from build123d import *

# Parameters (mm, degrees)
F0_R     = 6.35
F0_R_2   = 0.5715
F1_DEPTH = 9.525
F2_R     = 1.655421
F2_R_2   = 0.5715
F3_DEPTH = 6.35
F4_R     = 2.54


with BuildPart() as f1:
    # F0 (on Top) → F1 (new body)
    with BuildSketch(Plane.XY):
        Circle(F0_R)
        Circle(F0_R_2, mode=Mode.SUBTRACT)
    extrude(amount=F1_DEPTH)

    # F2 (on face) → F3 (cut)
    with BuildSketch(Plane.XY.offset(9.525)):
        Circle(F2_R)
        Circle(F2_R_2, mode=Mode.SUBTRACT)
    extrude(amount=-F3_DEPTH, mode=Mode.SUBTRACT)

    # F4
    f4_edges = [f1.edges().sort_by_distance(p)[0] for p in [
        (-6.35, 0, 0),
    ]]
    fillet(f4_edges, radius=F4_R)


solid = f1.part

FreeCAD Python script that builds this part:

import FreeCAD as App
import Part
import Sketcher
Q = App.Units.Quantity


def edges_at(feature, points):
    """Names of the edges that pass closest to the given points."""
    edges = feature.Shape.Edges
    near = lambda p: min(range(len(edges)), key=lambda i: edges[i].distToShape(Part.Vertex(*p))[0])
    return sorted({f"Edge{near(p) + 1}" for p in points})

doc = App.newDocument("Part")
body = doc.addObject("PartDesign::Body", "Body")

sketch1 = doc.addObject("Sketcher::SketchObject", "Sketch")
body.addObject(sketch1)
sketch1.AttachmentSupport = (doc.XY_Plane, [""])
sketch1.MapMode = "FlatFace"
sketch1.addGeometry(Part.Circle(App.Vector(0, 0, 0), App.Vector(0, 0, 1), 6.3), False)
sketch1.addGeometry(Part.Circle(App.Vector(0, 0, 0), App.Vector(0, 0, 1), 0.6), False)
sketch1.addConstraint(Sketcher.Constraint("Coincident", 0, 3, -1, 1))
sketch1.addConstraint(Sketcher.Constraint("Coincident", 1, 3, -1, 1))
sketch1.addConstraint(Sketcher.Constraint("Diameter", 0, Q("0.5 in")))
sketch1.addConstraint(Sketcher.Constraint("Diameter", 1, Q("0.045 in")))
pad1 = doc.addObject("PartDesign::Pad", "Pad")
body.addObject(pad1)
pad1.Profile = sketch1
pad1.Length = Q("0.375 in")

sketch2 = doc.addObject("Sketcher::SketchObject", "Sketch001")
body.addObject(sketch2)
sketch2.AttachmentSupport = (doc.XY_Plane, [""])
sketch2.MapMode = "FlatFace"
sketch2.AttachmentOffset = App.Placement(App.Vector(0, 0, 0.375 * 25.4), App.Rotation())
sketch2.addGeometry(Part.Circle(App.Vector(0, 0, 0), App.Vector(0, 0, 1), 1.7), False)
sketch2.addGeometry(Part.Circle(App.Vector(0, 0, 0), App.Vector(0, 0, 1), 0.6), False)
sketch2.addConstraint(Sketcher.Constraint("Coincident", 0, 3, -1, 1))
sketch2.addConstraint(Sketcher.Constraint("Coincident", 1, 3, -1, 1))
sketch2.addConstraint(Sketcher.Constraint("Diameter", 1, Q("0.045 in")))
sketch2.addConstraint(Sketcher.Constraint("Diameter", 0, 3.310842))
pocket1 = doc.addObject("PartDesign::Pocket", "Pocket")
body.addObject(pocket1)
pocket1.Profile = sketch2
pocket1.Length = Q("0.25 in")
doc.recompute()

fillet = doc.addObject("PartDesign::Fillet", "Fillet")
body.addObject(fillet)
fillet.Base = (pocket1, edges_at(pocket1, [(-6.35, 0, 0)]))
fillet.Radius = Q("0.1 in")

doc.recompute()
